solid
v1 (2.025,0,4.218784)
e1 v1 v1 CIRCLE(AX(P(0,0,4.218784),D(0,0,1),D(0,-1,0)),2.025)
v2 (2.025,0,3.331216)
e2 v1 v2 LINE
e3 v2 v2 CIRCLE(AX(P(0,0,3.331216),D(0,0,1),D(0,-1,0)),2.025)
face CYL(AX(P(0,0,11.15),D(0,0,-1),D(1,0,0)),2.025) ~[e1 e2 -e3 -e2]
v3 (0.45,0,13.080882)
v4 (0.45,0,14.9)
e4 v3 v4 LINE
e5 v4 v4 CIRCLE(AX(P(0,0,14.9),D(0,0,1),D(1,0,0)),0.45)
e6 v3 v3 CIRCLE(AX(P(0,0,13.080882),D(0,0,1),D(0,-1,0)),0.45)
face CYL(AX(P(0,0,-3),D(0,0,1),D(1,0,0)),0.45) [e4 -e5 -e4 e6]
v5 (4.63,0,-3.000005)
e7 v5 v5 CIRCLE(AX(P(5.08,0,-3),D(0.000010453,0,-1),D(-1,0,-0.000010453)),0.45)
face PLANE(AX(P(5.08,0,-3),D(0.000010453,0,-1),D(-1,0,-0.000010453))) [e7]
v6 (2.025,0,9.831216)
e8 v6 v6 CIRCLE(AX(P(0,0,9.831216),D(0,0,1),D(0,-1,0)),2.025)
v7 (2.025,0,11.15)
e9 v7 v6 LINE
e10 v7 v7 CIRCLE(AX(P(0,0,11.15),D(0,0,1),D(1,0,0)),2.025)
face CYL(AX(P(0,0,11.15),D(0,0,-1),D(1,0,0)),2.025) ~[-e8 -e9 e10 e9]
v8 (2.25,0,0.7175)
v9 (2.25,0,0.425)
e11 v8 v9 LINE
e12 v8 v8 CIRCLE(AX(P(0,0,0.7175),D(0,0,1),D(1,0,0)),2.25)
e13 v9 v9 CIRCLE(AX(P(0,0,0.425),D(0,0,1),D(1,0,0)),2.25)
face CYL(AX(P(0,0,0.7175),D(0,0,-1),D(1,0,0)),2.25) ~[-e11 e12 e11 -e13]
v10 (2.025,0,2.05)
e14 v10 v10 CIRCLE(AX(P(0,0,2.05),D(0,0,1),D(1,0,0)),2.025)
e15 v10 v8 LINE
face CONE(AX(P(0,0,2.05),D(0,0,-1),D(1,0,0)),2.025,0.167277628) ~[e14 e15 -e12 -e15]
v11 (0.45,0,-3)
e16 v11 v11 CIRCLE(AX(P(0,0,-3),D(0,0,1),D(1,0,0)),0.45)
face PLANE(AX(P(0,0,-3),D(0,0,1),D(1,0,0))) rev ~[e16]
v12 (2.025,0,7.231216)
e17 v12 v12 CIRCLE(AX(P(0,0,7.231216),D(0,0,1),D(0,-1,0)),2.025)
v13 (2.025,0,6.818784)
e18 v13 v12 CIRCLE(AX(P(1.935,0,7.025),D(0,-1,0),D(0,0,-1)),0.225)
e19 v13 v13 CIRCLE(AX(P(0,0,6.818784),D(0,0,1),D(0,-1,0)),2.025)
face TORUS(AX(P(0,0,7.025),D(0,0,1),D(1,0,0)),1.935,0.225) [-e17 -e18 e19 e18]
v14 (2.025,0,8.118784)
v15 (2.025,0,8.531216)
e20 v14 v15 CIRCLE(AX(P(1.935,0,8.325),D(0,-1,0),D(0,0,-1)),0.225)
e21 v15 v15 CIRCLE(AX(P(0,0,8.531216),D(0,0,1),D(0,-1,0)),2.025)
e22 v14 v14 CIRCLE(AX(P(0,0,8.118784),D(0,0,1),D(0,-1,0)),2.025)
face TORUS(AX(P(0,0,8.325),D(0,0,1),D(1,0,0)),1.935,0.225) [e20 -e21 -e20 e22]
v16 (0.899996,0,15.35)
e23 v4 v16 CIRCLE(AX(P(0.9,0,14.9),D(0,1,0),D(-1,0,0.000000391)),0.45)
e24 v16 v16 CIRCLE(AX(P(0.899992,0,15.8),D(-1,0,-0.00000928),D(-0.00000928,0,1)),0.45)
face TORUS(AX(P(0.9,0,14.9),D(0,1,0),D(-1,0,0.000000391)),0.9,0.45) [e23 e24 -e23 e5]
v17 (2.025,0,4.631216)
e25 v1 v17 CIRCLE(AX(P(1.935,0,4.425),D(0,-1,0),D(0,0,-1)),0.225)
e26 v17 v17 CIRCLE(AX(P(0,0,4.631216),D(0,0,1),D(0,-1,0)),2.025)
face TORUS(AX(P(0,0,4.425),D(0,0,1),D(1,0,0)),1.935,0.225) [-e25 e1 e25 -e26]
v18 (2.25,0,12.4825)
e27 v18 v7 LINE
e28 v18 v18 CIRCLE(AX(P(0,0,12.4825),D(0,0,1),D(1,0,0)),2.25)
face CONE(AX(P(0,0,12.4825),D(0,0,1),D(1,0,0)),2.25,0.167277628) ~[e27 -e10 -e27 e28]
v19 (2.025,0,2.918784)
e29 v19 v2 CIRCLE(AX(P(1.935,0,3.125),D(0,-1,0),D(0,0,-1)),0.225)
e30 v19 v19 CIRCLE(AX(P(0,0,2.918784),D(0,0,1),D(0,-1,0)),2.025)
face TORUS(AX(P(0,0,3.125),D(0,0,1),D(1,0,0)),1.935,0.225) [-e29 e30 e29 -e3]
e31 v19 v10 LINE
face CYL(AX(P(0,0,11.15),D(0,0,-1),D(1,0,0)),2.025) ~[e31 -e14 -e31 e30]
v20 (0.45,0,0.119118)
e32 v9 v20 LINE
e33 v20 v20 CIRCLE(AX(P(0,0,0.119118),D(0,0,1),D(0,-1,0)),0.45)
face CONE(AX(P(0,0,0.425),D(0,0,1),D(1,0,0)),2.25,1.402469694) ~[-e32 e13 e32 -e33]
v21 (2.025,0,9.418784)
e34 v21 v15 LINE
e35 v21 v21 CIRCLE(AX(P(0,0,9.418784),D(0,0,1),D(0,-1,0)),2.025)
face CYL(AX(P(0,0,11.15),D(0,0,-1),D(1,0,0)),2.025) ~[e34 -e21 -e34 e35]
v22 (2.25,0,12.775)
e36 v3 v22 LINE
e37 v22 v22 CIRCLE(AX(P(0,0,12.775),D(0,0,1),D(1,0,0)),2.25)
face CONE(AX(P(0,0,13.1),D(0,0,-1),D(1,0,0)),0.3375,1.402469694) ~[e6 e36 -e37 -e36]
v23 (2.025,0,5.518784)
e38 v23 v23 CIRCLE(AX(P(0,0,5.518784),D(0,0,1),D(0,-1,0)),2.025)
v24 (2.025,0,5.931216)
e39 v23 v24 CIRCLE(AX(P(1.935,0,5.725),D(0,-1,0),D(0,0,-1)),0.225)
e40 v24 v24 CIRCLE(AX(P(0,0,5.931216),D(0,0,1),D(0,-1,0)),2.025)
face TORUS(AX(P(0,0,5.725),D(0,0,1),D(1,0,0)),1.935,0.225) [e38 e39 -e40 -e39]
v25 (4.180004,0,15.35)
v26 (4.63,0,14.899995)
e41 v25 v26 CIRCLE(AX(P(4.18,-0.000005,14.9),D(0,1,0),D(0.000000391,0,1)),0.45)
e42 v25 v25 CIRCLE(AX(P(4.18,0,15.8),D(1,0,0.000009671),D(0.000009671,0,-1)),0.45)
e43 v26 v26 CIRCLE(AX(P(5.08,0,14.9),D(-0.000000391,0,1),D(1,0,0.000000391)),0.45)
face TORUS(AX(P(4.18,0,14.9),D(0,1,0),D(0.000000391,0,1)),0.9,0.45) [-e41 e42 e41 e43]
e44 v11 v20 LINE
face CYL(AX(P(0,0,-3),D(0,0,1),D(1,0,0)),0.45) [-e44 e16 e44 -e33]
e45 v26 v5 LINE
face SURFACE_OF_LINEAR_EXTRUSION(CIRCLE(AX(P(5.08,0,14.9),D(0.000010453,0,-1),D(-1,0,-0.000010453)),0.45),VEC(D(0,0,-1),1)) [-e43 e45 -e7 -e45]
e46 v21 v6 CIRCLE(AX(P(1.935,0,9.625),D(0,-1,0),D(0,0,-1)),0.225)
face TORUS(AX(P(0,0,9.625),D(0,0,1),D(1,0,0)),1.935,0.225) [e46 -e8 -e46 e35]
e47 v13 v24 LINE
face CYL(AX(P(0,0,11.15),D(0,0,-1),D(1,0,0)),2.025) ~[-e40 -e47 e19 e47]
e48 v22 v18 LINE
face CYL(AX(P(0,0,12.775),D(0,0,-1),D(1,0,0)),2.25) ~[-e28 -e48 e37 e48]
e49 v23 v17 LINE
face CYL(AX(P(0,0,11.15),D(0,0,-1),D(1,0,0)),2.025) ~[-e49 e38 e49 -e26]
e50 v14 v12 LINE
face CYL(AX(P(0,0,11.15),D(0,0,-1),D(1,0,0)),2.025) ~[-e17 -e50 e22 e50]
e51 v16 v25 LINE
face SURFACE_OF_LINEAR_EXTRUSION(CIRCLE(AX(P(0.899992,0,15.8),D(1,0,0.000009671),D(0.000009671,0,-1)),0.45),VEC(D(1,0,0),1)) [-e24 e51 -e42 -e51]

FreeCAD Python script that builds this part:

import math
import FreeCAD as App
import Part
import Sketcher

V = App.Vector
Q = App.Units.Quantity


def add_polygon(sketch, points):
    """Adds a closed chain of lines whose ends are joined by coincident constraints."""
    first, n = sketch.GeometryCount, len(points)
    for a, b in zip(points, points[1:] + points[:1]):
        sketch.addGeometry(Part.LineSegment(App.Vector(*a, 0), App.Vector(*b, 0)), False)
    for i in range(n):
        sketch.addConstraint(Sketcher.Constraint("Coincident", first + i, 2, first + (i + 1) % n, 1))

doc = App.newDocument("Part")
body = doc.addObject("PartDesign::Body", "Body")

sketch1 = body.newObject("Sketcher::SketchObject", "Sketch")
sketch1.AttachmentSupport = (doc.getObject("XZ_Plane"), [""])
sketch1.MapMode = "FlatFace"
add_polygon(sketch1, [(0, 13.1), (0, 0.1), (0.3375, 0.1), (2.25, 0.425), (2.25, 0.7175), (2.025, 2.05), (2.025, 11.15), (2.25, 12.4825), (2.25, 12.775), (0.3375, 13.1)])
sketch1.addConstraint([
    Sketcher.Constraint("Vertical", 0),
    Sketcher.Constraint("Horizontal", 1),
    Sketcher.Constraint("Vertical", 3),
    Sketcher.Constraint("Vertical", 5),
    Sketcher.Constraint("Vertical", 7),
    Sketcher.Constraint("Horizontal", 9),
    Sketcher.Constraint("PointOnObject", 0, 2, -2),
    Sketcher.Constraint("Vertical", 3, 2, 6, 2),
    Sketcher.Constraint("Vertical", 1, 2, 8, 2),
    Sketcher.Constraint("Equal", 3, 7),
    Sketcher.Constraint("Equal", 4, 6),
    Sketcher.Constraint("Equal", 2, 8),
    Sketcher.Constraint("DistanceY", 0, 2, 0, 1, Q("13 mm")),
    Sketcher.Constraint("DistanceY", 5, 1, 5, 2, Q("9.1 mm")),
    Sketcher.Constraint("DistanceY", -1, 1, 0, 2, Q("0.1 mm")),
    Sketcher.Constraint("DistanceX", -1, 1, 2, 2, Q("2.25 mm")),
    Sketcher.Constraint("DistanceY", 2, 2, 7, 2, Q("12.35 mm")),
    Sketcher.Constraint("DistanceX", 1, 1, 1, 2, Q("0.3375 mm")),
    Sketcher.Constraint("DistanceY", 3, 1, 3, 2, Q("0.2925 mm")),
    Sketcher.Constraint("DistanceX", -1, 1, 4, 2, Q("2.025 mm")),
])
revolution = body.newObject("PartDesign::Revolution", "Revolution")
revolution.Profile = sketch1
revolution.ReferenceAxis = (sketch1, ["V_Axis"])
revolution.Angle = 360
body2 = doc.addObject("PartDesign::Body", "Body001")

sketch2 = body2.newObject("Sketcher::SketchObject", "Sketch001")
sketch2.AttachmentSupport = (doc.getObject("XZ_Plane001"), [""])
sketch2.MapMode = "FlatFace"
sketch2.addGeometry([
    Part.LineSegment(V(1.8, 10.7, 0), V(1.8, 2.05, 0)),
    Part.LineSegment(V(1.8, 2.05, 0), V(1.935, 2.05, 0)),
    Part.LineSegment(V(1.935, 2.05, 0), V(1.935, 2.9, 0)),
    Part.ArcOfCircle(Part.Circle(V(1.935, 3.125, 0), V(0, 0, 1), 0.225), math.radians(-90), math.radians(90)),
    Part.LineSegment(V(1.935, 3.35, 0), V(1.935, 4.2, 0)),
    Part.ArcOfCircle(Part.Circle(V(1.935, 4.425, 0), V(0, 0, 1), 0.225), math.radians(-90), math.radians(90)),
    Part.LineSegment(V(1.935, 4.65, 0), V(1.935, 5.5, 0)),
    Part.ArcOfCircle(Part.Circle(V(1.935, 5.725, 0), V(0, 0, 1), 0.225), math.radians(-90), math.radians(90)),
    Part.LineSegment(V(1.935, 5.95, 0), V(1.935, 6.8, 0)),
    Part.ArcOfCircle(Part.Circle(V(1.935, 7.025, 0), V(0, 0, 1), 0.225), math.radians(-90), math.radians(90)),
    Part.LineSegment(V(1.935, 7.25, 0), V(1.935, 8.1, 0)),
    Part.ArcOfCircle(Part.Circle(V(1.935, 8.325, 0), V(0, 0, 1), 0.225), math.radians(-90), math.radians(90)),
    Part.LineSegment(V(1.935, 8.55, 0), V(1.935, 9.4, 0)),
    Part.ArcOfCircle(Part.Circle(V(1.935, 9.625, 0), V(0, 0, 1), 0.225), math.radians(-90), math.radians(90)),
    Part.LineSegment(V(1.935, 9.85, 0), V(1.935, 10.7, 0)),
    Part.LineSegment(V(1.935, 10.7, 0), V(1.8, 10.7, 0)),
], False)
sketch2.addConstraint([
    Sketcher.Constraint("Coincident", 0, 2, 1, 1),
    Sketcher.Constraint("Coincident", 1, 2, 2, 1),
    Sketcher.Constraint("Coincident", 2, 2, 3, 1),
    Sketcher.Constraint("Coincident", 3, 2, 4, 1),
    Sketcher.Constraint("Coincident", 4, 2, 5, 1),
    Sketcher.Constraint("Coincident", 5, 2, 6, 1),
    Sketcher.Constraint("Coincident", 6, 2, 7, 1),
    Sketcher.Constraint("Coincident", 7, 2, 8, 1),
    Sketcher.Constraint("Coincident", 8, 2, 9, 1),
    Sketcher.Constraint("Coincident", 9, 2, 10, 1),
    Sketcher.Constraint("Coincident", 10, 2, 11, 1),
    Sketcher.Constraint("Coincident", 11, 2, 12, 1),
    Sketcher.Constraint("Coincident", 12, 2, 13, 1),
    Sketcher.Constraint("Coincident", 13, 2, 14, 1),
    Sketcher.Constraint("Coincident", 14, 2, 15, 1),
    Sketcher.Constraint("Coincident", 15, 2, 0, 1),
    Sketcher.Constraint("Vertical", 0),
    Sketcher.Constraint("Horizontal", 1),
    Sketcher.Constraint("Vertical", 2),
    Sketcher.Constraint("Vertical", 4),
    Sketcher.Constraint("Vertical", 6),
    Sketcher.Constraint("Vertical", 8),
    Sketcher.Constraint("Vertical", 10),
    Sketcher.Constraint("Vertical", 12),
    Sketcher.Constraint("Vertical", 14),
    Sketcher.Constraint("Horizontal", 15),
    Sketcher.Constraint("Equal", 3, 5),
    Sketcher.Constraint("Equal", 5, 7),
    Sketcher.Constraint("Equal", 7, 9),
    Sketcher.Constraint("Equal", 9, 11),
    Sketcher.Constraint("Equal", 11, 13),
    Sketcher.Constraint("Vertical", 3, 3, 5, 3),
    Sketcher.Constraint("Vertical", 5, 3, 7, 3),
    Sketcher.Constraint("Vertical", 7, 3, 9, 3),
    Sketcher.Constraint("Vertical", 9, 3, 11, 3),
    Sketcher.Constraint("Vertical", 11, 3, 13, 3),
    Sketcher.Constraint("Vertical", 13, 3, 1, 2),
    Sketcher.Constraint("Vertical", 2, 2, 3, 2),
    Sketcher.Constraint("Vertical", 4, 2, 5, 2),
    Sketcher.Constraint("Vertical", 6, 2, 7, 2),
    Sketcher.Constraint("Vertical", 8, 2, 9, 2),
    Sketcher.Constraint("Vertical", 10, 2, 11, 2),
    Sketcher.Constraint("Vertical", 12, 2, 13, 2),
    Sketcher.Constraint("Equal", 2, 4),
    Sketcher.Constraint("Equal", 4, 6),
    Sketcher.Constraint("Equal", 6, 8),
    Sketcher.Constraint("Equal", 8, 10),
    Sketcher.Constraint("Equal", 10, 12),
    Sketcher.Constraint("Equal", 12, 14),
    Sketcher.Constraint("Radius", 3, Q("0.225 mm")),
    Sketcher.Constraint("DistanceY", 0, 2, 0, 1, Q("8.65 mm")),
    Sketcher.Constraint("DistanceX", -1, 1, 0, 2, Q("1.8 mm")),
    Sketcher.Constraint("DistanceY", -1, 1, 2, 2, Q("2.9 mm")),
    Sketcher.Constraint("DistanceX", 1, 1, 1, 2, Q("0.135 mm")),
])
revolution2 = body2.newObject("PartDesign::Revolution", "Revolution001")
revolution2.Profile = sketch2
revolution2.ReferenceAxis = (sketch2, ["V_Axis"])
revolution2.Angle = 360
body3 = doc.addObject("PartDesign::Body", "Body002")

sketch3 = body3.newObject("Sketcher::SketchObject", "Sketch002")
sketch3.AttachmentSupport = (doc.getObject("XY_Plane002"), [""])
sketch3.MapMode = "FlatFace"
sketch3.AttachmentOffset = App.Placement(V(0, 0, -2), App.Rotation())
sketch3.addGeometry(Part.Circle(V(0, 0, 0), V(0, 0, 1), 0.45), False)
sketch3.addConstraint([
    Sketcher.Constraint("Coincident", 0, 3, -1, 1),
    Sketcher.Constraint("Diameter", 0, Q("0.9 mm")),
])

sketch4 = body3.newObject("Sketcher::SketchObject", "Sketch003")
sketch4.AttachmentSupport = (doc.getObject("XZ_Plane002"), [""])
sketch4.MapMode = "FlatFace"
sketch4.addGeometry([
    Part.LineSegment(V(0, -3, 0), V(0, 14.9, 0)),
    Part.ArcOfCircle(Part.Circle(V(0.9, 14.9, 0), V(0, 0, 1), 0.9), math.radians(90.000532), math.radians(179.999978)),
    Part.LineSegment(V(0.899992, 15.8, 0), V(4.18, 15.8, 0)),
    Part.ArcOfCircle(Part.Circle(V(4.18, 14.9, 0), V(0, 0, 1), 0.9), math.radians(0.000022), math.radians(89.999978)),
    Part.LineSegment(V(5.08, 14.9, 0), V(5.08, -3, 0)),
], False)
sketch4.addConstraint([
    Sketcher.Constraint("Tangent", 0, 2, 1, 2),
    Sketcher.Constraint("Coincident", 1, 1, 2, 1),
    Sketcher.Constraint("Tangent", 2, 2, 3, 2),
    Sketcher.Constraint("Tangent", 3, 1, 4, 1),
    Sketcher.Constraint("Vertical", 0),
    Sketcher.Constraint("Horizontal", 2),
    Sketcher.Constraint("Vertical", 4),
    Sketcher.Constraint("Equal", 1, 3),
    Sketcher.Constraint("PointOnObject", 0, 1, -2),
    Sketcher.Constraint("Horizontal", 0, 1, 4, 2),
    Sketcher.Constraint("Radius", 1, Q("0.9 mm")),
    Sketcher.Constraint("DistanceY", 0, 1, 0, 2, Q("17.9 mm")),
    Sketcher.Constraint("DistanceY", 0, 1, -1, 1, Q("3 mm")),
    Sketcher.Constraint("DistanceX", -1, 1, 3, 3, Q("4.18 mm")),
    Sketcher.Constraint("DistanceX", 2, 1, 2, 2, Q("3.280008 mm")),
])
doc.recompute()

additivepipe = body3.newObject("PartDesign::AdditivePipe", "AdditivePipe")
additivepipe.Profile = sketch3
additivepipe.Spine = (sketch4, ["Edge1", "Edge2", "Edge3", "Edge4", "Edge5"])
doc.recompute()

boolean = body3.newObject("PartDesign::Boolean", "Boolean")
boolean.Type = "Fuse"
boolean.addObjects([body])
doc.recompute()

boolean2 = body3.newObject("PartDesign::Boolean", "Boolean001")
boolean2.Type = "Fuse"
boolean2.addObjects([body2])

doc.recompute()
